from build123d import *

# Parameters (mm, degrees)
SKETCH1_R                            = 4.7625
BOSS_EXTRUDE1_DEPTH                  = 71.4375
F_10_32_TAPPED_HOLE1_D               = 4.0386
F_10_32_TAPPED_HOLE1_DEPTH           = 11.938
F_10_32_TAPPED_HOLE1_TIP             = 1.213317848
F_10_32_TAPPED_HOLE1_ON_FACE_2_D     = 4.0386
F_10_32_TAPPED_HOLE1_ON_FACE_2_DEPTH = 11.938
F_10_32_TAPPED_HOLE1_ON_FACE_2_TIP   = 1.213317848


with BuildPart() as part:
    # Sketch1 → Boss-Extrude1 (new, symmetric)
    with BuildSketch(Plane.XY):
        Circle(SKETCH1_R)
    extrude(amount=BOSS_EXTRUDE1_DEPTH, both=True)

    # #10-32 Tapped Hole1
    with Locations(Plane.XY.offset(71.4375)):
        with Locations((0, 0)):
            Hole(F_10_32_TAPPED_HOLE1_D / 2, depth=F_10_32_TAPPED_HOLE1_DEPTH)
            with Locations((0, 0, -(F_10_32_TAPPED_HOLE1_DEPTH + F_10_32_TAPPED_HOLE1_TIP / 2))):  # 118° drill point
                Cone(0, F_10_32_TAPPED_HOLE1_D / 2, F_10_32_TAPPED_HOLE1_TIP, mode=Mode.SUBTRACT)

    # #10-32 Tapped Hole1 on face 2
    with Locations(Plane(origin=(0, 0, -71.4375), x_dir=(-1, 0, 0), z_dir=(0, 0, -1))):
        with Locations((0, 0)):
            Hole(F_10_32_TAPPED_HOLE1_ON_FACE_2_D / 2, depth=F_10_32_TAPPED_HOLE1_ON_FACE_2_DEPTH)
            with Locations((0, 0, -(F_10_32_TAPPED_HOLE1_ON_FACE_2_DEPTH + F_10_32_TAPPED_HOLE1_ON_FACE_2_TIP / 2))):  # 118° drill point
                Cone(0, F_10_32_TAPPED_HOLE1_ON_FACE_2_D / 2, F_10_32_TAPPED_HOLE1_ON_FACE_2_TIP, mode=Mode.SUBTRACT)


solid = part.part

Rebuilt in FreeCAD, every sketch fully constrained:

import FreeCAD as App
import Part
import Sketcher

V = App.Vector
Q = App.Units.Quantity

doc = App.newDocument("Part")
params = doc.addObject("Spreadsheet::Sheet", "Params")
for row, (alias, value) in enumerate([
    ("sketch1_diameter", "0.375 in"),
    ("pad1_length", "5.625 in"),
    ("sketch2_diameter", "0.159 in"),
    ("hole_diameter", "0.159 in"),
    ("hole_depth", "0.47 in"),
    ("sketch3_diameter", "0.159 in"),
    ("hole2_diameter", "0.159 in"),
    ("hole2_depth", "0.47 in"),
], start=1):
    params.set(f"A{row}", alias)
    params.set(f"B{row}", "=" + value)
    params.setAlias(f"B{row}", alias)

body = doc.addObject("PartDesign::Body", "Body")

sketch1 = body.newObject("Sketcher::SketchObject", "Sketch")
sketch1.AttachmentSupport = (doc.getObject("XY_Plane"), [""])
sketch1.MapMode = "FlatFace"
sketch1.addGeometry(Part.Circle(V(0, 0, 0), V(0, 0, 1), 4.8), False)
sketch1.addConstraint(Sketcher.Constraint("Coincident", 0, 3, -1, 1))
sketch1.addConstraint(Sketcher.Constraint("Diameter", 0, Q("0.375 in")))
sketch1.setExpression("Constraints[1]", "Params.sketch1_diameter")
pad1 = body.newObject("PartDesign::Pad", "Pad")
pad1.Profile = sketch1
pad1.setExpression("Length", "Params.pad1_length")
pad1.Midplane = True

sketch2 = body.newObject("Sketcher::SketchObject", "Sketch001")
sketch2.AttachmentSupport = (doc.getObject("XY_Plane"), [""])
sketch2.MapMode = "FlatFace"
sketch2.AttachmentOffset = App.Placement(V(0, 0, 2.8125 * 25.4), App.Rotation())
sketch2.addGeometry(Part.Circle(V(0, 0, 0), V(0, 0, 1), 2), False)
sketch2.addConstraint(Sketcher.Constraint("Coincident", 0, 3, -1, 1))
sketch2.addConstraint(Sketcher.Constraint("Diameter", 0, Q("0.159 in")))
sketch2.setExpression("Constraints[1]", "Params.sketch2_diameter")
doc.recompute()
hole = body.newObject("PartDesign::Hole", "Hole")
hole.Profile = sketch2
hole.ThreadType = "None"
hole.setExpression("Diameter", "Params.hole_diameter")
hole.DepthType = "Dimension"
hole.setExpression("Depth", "Params.hole_depth")
hole.DrillPoint = "Angled"
hole.DrillPointAngle = 118

sketch3 = body.newObject("Sketcher::SketchObject", "Sketch002")
sketch3.AttachmentSupport = (doc.getObject("XY_Plane"), [""])
sketch3.MapMode = "FlatFace"
sketch3.AttachmentOffset = App.Placement(V(0, 0, -2.8125 * 25.4), App.Rotation())
sketch3.addGeometry(Part.Circle(V(0, 0, 0), V(0, 0, 1), 2), False)
sketch3.addConstraint(Sketcher.Constraint("Coincident", 0, 3, -1, 1))
sketch3.addConstraint(Sketcher.Constraint("Diameter", 0, Q("0.159 in")))
sketch3.setExpression("Constraints[1]", "Params.sketch3_diameter")
doc.recompute()
hole2 = body.newObject("PartDesign::Hole", "Hole001")
hole2.Profile = sketch3
hole2.ThreadType = "None"
hole2.setExpression("Diameter", "Params.hole2_diameter")
hole2.DepthType = "Dimension"
hole2.setExpression("Depth", "Params.hole2_depth")
hole2.DrillPoint = "Angled"
hole2.DrillPointAngle = 118
hole2.Reversed = True

doc.recompute()
